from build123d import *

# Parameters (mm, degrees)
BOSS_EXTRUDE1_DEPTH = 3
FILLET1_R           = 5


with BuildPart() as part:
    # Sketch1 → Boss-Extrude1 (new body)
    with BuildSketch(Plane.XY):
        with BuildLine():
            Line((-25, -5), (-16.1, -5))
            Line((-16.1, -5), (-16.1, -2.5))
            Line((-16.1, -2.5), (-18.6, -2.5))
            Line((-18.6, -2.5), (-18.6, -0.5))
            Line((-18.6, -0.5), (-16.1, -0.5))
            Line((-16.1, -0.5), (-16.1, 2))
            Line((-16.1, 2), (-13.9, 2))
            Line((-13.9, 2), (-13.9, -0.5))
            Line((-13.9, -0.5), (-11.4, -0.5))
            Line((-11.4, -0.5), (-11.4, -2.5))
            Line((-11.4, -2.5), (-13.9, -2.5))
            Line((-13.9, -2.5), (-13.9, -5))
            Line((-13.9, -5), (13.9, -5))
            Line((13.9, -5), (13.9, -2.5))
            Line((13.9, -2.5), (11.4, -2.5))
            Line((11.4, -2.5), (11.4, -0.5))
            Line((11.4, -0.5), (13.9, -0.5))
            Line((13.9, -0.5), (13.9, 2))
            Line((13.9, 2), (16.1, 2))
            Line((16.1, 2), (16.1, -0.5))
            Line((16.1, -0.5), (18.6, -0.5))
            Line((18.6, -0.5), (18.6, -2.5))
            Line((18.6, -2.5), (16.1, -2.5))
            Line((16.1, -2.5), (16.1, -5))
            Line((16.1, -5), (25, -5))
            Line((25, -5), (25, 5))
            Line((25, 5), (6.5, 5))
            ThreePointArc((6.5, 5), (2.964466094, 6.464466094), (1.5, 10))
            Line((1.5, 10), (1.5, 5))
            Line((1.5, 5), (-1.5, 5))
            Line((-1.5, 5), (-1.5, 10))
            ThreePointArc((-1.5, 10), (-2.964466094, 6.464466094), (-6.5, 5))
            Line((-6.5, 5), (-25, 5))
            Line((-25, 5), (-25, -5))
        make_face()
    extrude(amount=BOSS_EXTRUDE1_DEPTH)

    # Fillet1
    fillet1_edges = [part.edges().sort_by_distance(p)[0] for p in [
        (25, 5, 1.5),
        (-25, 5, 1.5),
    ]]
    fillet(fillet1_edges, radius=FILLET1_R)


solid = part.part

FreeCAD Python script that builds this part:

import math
import FreeCAD as App
import Part
import Sketcher

V = App.Vector


def edges_at(feature, points):
    """Names of the edges that pass closest to the given points."""
    edges = feature.Shape.Edges
    near = lambda p: min(range(len(edges)), key=lambda i: edges[i].distToShape(Part.Vertex(*p))[0])
    return sorted({f"Edge{near(p) + 1}" for p in points})

doc = App.newDocument("Part")
body = doc.addObject("PartDesign::Body", "Body")

# Sketch on XY plane
sketch1 = doc.addObject("Sketcher::SketchObject", "Sketch")
body.addObject(sketch1)
sketch1.AttachmentSupport = (doc.XY_Plane, [""])
sketch1.MapMode = "FlatFace"
sketch1.addGeometry(Part.LineSegment(V(-25, -5, 0), V(-16.1, -5, 0)), False)
sketch1.addGeometry(Part.LineSegment(V(-16.1, -5, 0), V(-16.1, -2.5, 0)), False)
sketch1.addGeometry(Part.LineSegment(V(-16.1, -2.5, 0), V(-18.6, -2.5, 0)), False)
sketch1.addGeometry(Part.LineSegment(V(-18.6, -2.5, 0), V(-18.6, -0.5, 0)), False)
sketch1.addGeometry(Part.LineSegment(V(-18.6, -0.5, 0), V(-16.1, -0.5, 0)), False)
sketch1.addGeometry(Part.LineSegment(V(-16.1, -0.5, 0), V(-16.1, 2, 0)), False)
sketch1.addGeometry(Part.LineSegment(V(-16.1, 2, 0), V(-13.9, 2, 0)), False)
sketch1.addGeometry(Part.LineSegment(V(-13.9, 2, 0), V(-13.9, -0.5, 0)), False)
sketch1.addGeometry(Part.LineSegment(V(-13.9, -0.5, 0), V(-11.4, -0.5, 0)), False)
sketch1.addGeometry(Part.LineSegment(V(-11.4, -0.5, 0), V(-11.4, -2.5, 0)), False)
sketch1.addGeometry(Part.LineSegment(V(-11.4, -2.5, 0), V(-13.9, -2.5, 0)), False)
sketch1.addGeometry(Part.LineSegment(V(-13.9, -2.5, 0), V(-13.9, -5, 0)), False)
sketch1.addGeometry(Part.LineSegment(V(-13.9, -5, 0), V(13.9, -5, 0)), False)
sketch1.addGeometry(Part.LineSegment(V(13.9, -5, 0), V(13.9, -2.5, 0)), False)
sketch1.addGeometry(Part.LineSegment(V(13.9, -2.5, 0), V(11.4, -2.5, 0)), False)
sketch1.addGeometry(Part.LineSegment(V(11.4, -2.5, 0), V(11.4, -0.5, 0)), False)
sketch1.addGeometry(Part.LineSegment(V(11.4, -0.5, 0), V(13.9, -0.5, 0)), False)
sketch1.addGeometry(Part.LineSegment(V(13.9, -0.5, 0), V(13.9, 2, 0)), False)
sketch1.addGeometry(Part.LineSegment(V(13.9, 2, 0), V(16.1, 2, 0)), False)
sketch1.addGeometry(Part.LineSegment(V(16.1, 2, 0), V(16.1, -0.5, 0)), False)
sketch1.addGeometry(Part.LineSegment(V(16.1, -0.5, 0), V(18.6, -0.5, 0)), False)
sketch1.addGeometry(Part.LineSegment(V(18.6, -0.5, 0), V(18.6, -2.5, 0)), False)
sketch1.addGeometry(Part.LineSegment(V(18.6, -2.5, 0), V(16.1, -2.5, 0)), False)
sketch1.addGeometry(Part.LineSegment(V(16.1, -2.5, 0), V(16.1, -5, 0)), False)
sketch1.addGeometry(Part.LineSegment(V(16.1, -5, 0), V(25, -5, 0)), False)
sketch1.addGeometry(Part.LineSegment(V(25, -5, 0), V(25, 5, 0)), False)
sketch1.addGeometry(Part.LineSegment(V(25, 5, 0), V(6.5, 5, 0)), False)
sketch1.addGeometry(Part.ArcOfCircle(Part.Circle(V(6.5, 10, 0), V(0, 0, 1), 5), math.radians(180), math.radians(270)), False)
sketch1.addGeometry(Part.LineSegment(V(1.5, 10, 0), V(1.5, 5, 0)), False)
sketch1.addGeometry(Part.LineSegment(V(1.5, 5, 0), V(-1.5, 5, 0)), False)
sketch1.addGeometry(Part.LineSegment(V(-1.5, 5, 0), V(-1.5, 10, 0)), False)
sketch1.addGeometry(Part.ArcOfCircle(Part.Circle(V(-6.5, 10, 0), V(0, 0, 1), 5), math.radians(-90), math.radians(0)), False)
sketch1.addGeometry(Part.LineSegment(V(-6.5, 5, 0), V(-25, 5, 0)), False)
sketch1.addGeometry(Part.LineSegment(V(-25, 5, 0), V(-25, -5, 0)), False)
sketch1.addConstraint(Sketcher.Constraint("Coincident", 0, 2, 1, 1))
sketch1.addConstraint(Sketcher.Constraint("Coincident", 1, 2, 2, 1))
sketch1.addConstraint(Sketcher.Constraint("Coincident", 2, 2, 3, 1))
sketch1.addConstraint(Sketcher.Constraint("Coincident", 3, 2, 4, 1))
sketch1.addConstraint(Sketcher.Constraint("Coincident", 4, 2, 5, 1))
sketch1.addConstraint(Sketcher.Constraint("Coincident", 5, 2, 6, 1))
sketch1.addConstraint(Sketcher.Constraint("Coincident", 6, 2, 7, 1))
sketch1.addConstraint(Sketcher.Constraint("Coincident", 7, 2, 8, 1))
sketch1.addConstraint(Sketcher.Constraint("Coincident", 8, 2, 9, 1))
sketch1.addConstraint(Sketcher.Constraint("Coincident", 9, 2, 10, 1))
sketch1.addConstraint(Sketcher.Constraint("Coincident", 10, 2, 11, 1))
sketch1.addConstraint(Sketcher.Constraint("Coincident", 11, 2, 12, 1))
sketch1.addConstraint(Sketcher.Constraint("Coincident", 12, 2, 13, 1))
sketch1.addConstraint(Sketcher.Constraint("Coincident", 13, 2, 14, 1))
sketch1.addConstraint(Sketcher.Constraint("Coincident", 14, 2, 15, 1))
sketch1.addConstraint(Sketcher.Constraint("Coincident", 15, 2, 16, 1))
sketch1.addConstraint(Sketcher.Constraint("Coincident", 16, 2, 17, 1))
sketch1.addConstraint(Sketcher.Constraint("Coincident", 17, 2, 18, 1))
sketch1.addConstraint(Sketcher.Constraint("Coincident", 18, 2, 19, 1))
sketch1.addConstraint(Sketcher.Constraint("Coincident", 19, 2, 20, 1))
sketch1.addConstraint(Sketcher.Constraint("Coincident", 20, 2, 21, 1))
sketch1.addConstraint(Sketcher.Constraint("Coincident", 21, 2, 22, 1))
sketch1.addConstraint(Sketcher.Constraint("Coincident", 22, 2, 23, 1))
sketch1.addConstraint(Sketcher.Constraint("Coincident", 23, 2, 24, 1))
sketch1.addConstraint(Sketcher.Constraint("Coincident", 24, 2, 25, 1))
sketch1.addConstraint(Sketcher.Constraint("Coincident", 25, 2, 26, 1))
sketch1.addConstraint(Sketcher.Constraint("Tangent", 26, 2, 27, 2))
sketch1.addConstraint(Sketcher.Constraint("Tangent", 27, 1, 28, 1))
sketch1.addConstraint(Sketcher.Constraint("Coincident", 28, 2, 29, 1))
sketch1.addConstraint(Sketcher.Constraint("Coincident", 29, 2, 30, 1))
sketch1.addConstraint(Sketcher.Constraint("Tangent", 30, 2, 31, 2))
sketch1.addConstraint(Sketcher.Constraint("Tangent", 31, 1, 32, 1))
sketch1.addConstraint(Sketcher.Constraint("Coincident", 32, 2, 33, 1))
sketch1.addConstraint(Sketcher.Constraint("Coincident", 33, 2, 0, 1))
sketch1.addConstraint(Sketcher.Constraint("Horizontal", 0))
sketch1.addConstraint(Sketcher.Constraint("Vertical", 1))
sketch1.addConstraint(Sketcher.Constraint("Horizontal", 2))
sketch1.addConstraint(Sketcher.Constraint("Vertical", 3))
sketch1.addConstraint(Sketcher.Constraint("Horizontal", 4))
sketch1.addConstraint(Sketcher.Constraint("Vertical", 5))
sketch1.addConstraint(Sketcher.Constraint("Horizontal", 6))
sketch1.addConstraint(Sketcher.Constraint("Vertical", 7))
sketch1.addConstraint(Sketcher.Constraint("Horizontal", 8))
sketch1.addConstraint(Sketcher.Constraint("Vertical", 9))
sketch1.addConstraint(Sketcher.Constraint("Horizontal", 10))
sketch1.addConstraint(Sketcher.Constraint("Vertical", 11))
sketch1.addConstraint(Sketcher.Constraint("Horizontal", 12))
sketch1.addConstraint(Sketcher.Constraint("Vertical", 13))
sketch1.addConstraint(Sketcher.Constraint("Horizontal", 14))
sketch1.addConstraint(Sketcher.Constraint("Vertical", 15))
sketch1.addConstraint(Sketcher.Constraint("Horizontal", 16))
sketch1.addConstraint(Sketcher.Constraint("Vertical", 17))
sketch1.addConstraint(Sketcher.Constraint("Horizontal", 18))
sketch1.addConstraint(Sketcher.Constraint("Vertical", 19))
sketch1.addConstraint(Sketcher.Constraint("Horizontal", 20))
sketch1.addConstraint(Sketcher.Constraint("Vertical", 21))
sketch1.addConstraint(Sketcher.Constraint("Horizontal", 22))
sketch1.addConstraint(Sketcher.Constraint("Vertical", 23))
sketch1.addConstraint(Sketcher.Constraint("Horizontal", 24))
sketch1.addConstraint(Sketcher.Constraint("Vertical", 25))
sketch1.addConstraint(Sketcher.Constraint("Horizontal", 26))
sketch1.addConstraint(Sketcher.Constraint("Vertical", 28))
sketch1.addConstraint(Sketcher.Constraint("Horizontal", 29))
sketch1.addConstraint(Sketcher.Constraint("Vertical", 30))
sketch1.addConstraint(Sketcher.Constraint("Horizontal", 32))
sketch1.addConstraint(Sketcher.Constraint("Vertical", 33))
sketch1.addConstraint(Sketcher.Constraint("Equal", 27, 31))
sketch1.addConstraint(Sketcher.Constraint("Symmetric", 24, 2, 32, 2, -1, 1))
sketch1.addConstraint(Sketcher.Constraint("Symmetric", 27, 3, 31, 3, -2))
sketch1.addConstraint(Sketcher.Constraint("Symmetric", 10, 2, 13, 2, -2))
sketch1.addConstraint(Sketcher.Constraint("Symmetric", 8, 2, 15, 2, -2))
sketch1.addConstraint(Sketcher.Constraint("Symmetric", 6, 2, 17, 2, -2))
sketch1.addConstraint(Sketcher.Constraint("Symmetric", 4, 2, 19, 2, -2))
sketch1.addConstraint(Sketcher.Constraint("Symmetric", 2, 2, 21, 2, -2))
sketch1.addConstraint(Sketcher.Constraint("Symmetric", 0, 2, 23, 2, -2))
sketch1.addConstraint(Sketcher.Constraint("Horizontal", 4, 2, 7, 2))
sketch1.addConstraint(Sketcher.Constraint("Horizontal", 2, 2, 9, 2))
sketch1.addConstraint(Sketcher.Constraint("Horizontal", 0, 2, 11, 2))
sketch1.addConstraint(Sketcher.Constraint("Horizontal", 26, 2, 28, 2))
sketch1.addConstraint(Sketcher.Constraint("Vertical", 1, 2, 4, 2))
sketch1.addConstraint(Sketcher.Constraint("Vertical", 7, 2, 10, 2))
sketch1.addConstraint(Sketcher.Constraint("Equal", 4, 8))
sketch1.addConstraint(Sketcher.Constraint("Equal", 22, 1))
sketch1.addConstraint(Sketcher.Constraint("Equal", 1, 5))
sketch1.addConstraint(Sketcher.Constraint("Radius", 27, 5.0))
sketch1.addConstraint(Sketcher.Constraint("DistanceX", 29, 2, 29, 1, 3.0))
sketch1.addConstraint(Sketcher.Constraint("DistanceY", 3, 1, 3, 2, 2.0))
sketch1.addConstraint(Sketcher.Constraint("DistanceY", 25, 1, 25, 2, 10.0))
sketch1.addConstraint(Sketcher.Constraint("DistanceX", 0, 1, 0, 2, 8.9))
sketch1.addConstraint(Sketcher.Constraint("DistanceX", 2, 2, 2, 1, 2.5))
sketch1.addConstraint(Sketcher.Constraint("DistanceX", 6, 1, 6, 2, 2.2))
sketch1.addConstraint(Sketcher.Constraint("DistanceX", 12, 1, 12, 2, 27.8))
pad1 = doc.addObject("PartDesign::Pad", "Pad")
body.addObject(pad1)
pad1.Profile = sketch1
pad1.Length = 3
doc.recompute()

fillet = doc.addObject("PartDesign::Fillet", "Fillet")
body.addObject(fillet)
fillet.Base = (pad1, edges_at(pad1, [(25, 5, 1.5), (-25, 5, 1.5)]))
fillet.Radius = 5

doc.recompute()
